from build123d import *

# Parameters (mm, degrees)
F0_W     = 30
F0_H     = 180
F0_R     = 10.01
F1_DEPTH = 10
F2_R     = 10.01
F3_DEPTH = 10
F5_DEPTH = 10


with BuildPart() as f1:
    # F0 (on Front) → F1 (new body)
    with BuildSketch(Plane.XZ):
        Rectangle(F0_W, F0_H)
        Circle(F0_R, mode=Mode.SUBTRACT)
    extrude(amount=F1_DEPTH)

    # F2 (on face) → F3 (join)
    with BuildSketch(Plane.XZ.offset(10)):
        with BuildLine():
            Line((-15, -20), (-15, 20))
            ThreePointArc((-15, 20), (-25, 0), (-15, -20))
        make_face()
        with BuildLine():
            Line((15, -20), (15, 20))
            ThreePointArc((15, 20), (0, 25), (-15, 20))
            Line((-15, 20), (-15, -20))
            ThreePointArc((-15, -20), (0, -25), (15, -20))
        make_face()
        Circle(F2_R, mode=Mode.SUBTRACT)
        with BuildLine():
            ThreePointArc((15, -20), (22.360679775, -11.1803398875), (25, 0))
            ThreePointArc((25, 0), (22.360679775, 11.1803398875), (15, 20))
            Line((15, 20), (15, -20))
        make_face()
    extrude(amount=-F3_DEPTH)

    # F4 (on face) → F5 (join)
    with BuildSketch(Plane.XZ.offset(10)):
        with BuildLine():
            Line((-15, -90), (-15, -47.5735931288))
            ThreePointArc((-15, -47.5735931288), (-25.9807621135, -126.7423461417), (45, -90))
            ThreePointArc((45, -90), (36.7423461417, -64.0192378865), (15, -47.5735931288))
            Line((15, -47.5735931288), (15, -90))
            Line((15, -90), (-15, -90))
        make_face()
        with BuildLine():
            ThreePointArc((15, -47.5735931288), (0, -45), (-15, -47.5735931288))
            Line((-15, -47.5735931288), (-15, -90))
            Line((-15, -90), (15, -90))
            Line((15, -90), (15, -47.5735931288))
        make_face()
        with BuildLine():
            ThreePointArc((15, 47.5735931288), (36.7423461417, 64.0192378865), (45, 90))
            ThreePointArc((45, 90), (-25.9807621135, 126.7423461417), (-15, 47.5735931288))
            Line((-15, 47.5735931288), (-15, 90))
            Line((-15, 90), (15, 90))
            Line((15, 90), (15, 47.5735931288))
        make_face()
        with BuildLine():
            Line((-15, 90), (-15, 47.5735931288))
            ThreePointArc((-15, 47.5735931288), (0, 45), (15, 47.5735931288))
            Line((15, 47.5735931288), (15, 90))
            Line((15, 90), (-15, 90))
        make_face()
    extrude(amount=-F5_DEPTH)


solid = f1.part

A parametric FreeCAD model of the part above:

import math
import FreeCAD as App
import Part
import Sketcher
from FreeCAD import Vector

doc = App.newDocument("Part")
body = doc.addObject("PartDesign::Body", "Body")

# Sketch on XZ plane
sketch1 = doc.addObject("Sketcher::SketchObject", "Sketch")
body.addObject(sketch1)
sketch1.AttachmentSupport = (doc.XZ_Plane, [""])
sketch1.MapMode = "FlatFace"
sketch1.addGeometry(Part.LineSegment(Vector(-15, 90, 0), Vector(-15, -90, 0)), False)
sketch1.addGeometry(Part.LineSegment(Vector(-15, -90, 0), Vector(15, -90, 0)), False)
sketch1.addGeometry(Part.LineSegment(Vector(15, -90, 0), Vector(15, 90, 0)), False)
sketch1.addGeometry(Part.LineSegment(Vector(15, 90, 0), Vector(-15, 90, 0)), False)
sketch1.addGeometry(Part.Circle(Vector(0, 0, 0), Vector(0, 0, 1), 10.01), False)
sketch1.addConstraint(Sketcher.Constraint("Coincident", 0, 2, 1, 1))
sketch1.addConstraint(Sketcher.Constraint("Coincident", 1, 2, 2, 1))
sketch1.addConstraint(Sketcher.Constraint("Coincident", 2, 2, 3, 1))
sketch1.addConstraint(Sketcher.Constraint("Coincident", 3, 2, 0, 1))
sketch1.addConstraint(Sketcher.Constraint("Vertical", 0))
sketch1.addConstraint(Sketcher.Constraint("Horizontal", 1))
sketch1.addConstraint(Sketcher.Constraint("Vertical", 2))
sketch1.addConstraint(Sketcher.Constraint("Horizontal", 3))
sketch1.addConstraint(Sketcher.Constraint("Coincident", 4, 3, -1, 1))
sketch1.addConstraint(Sketcher.Constraint("Symmetric", 0, 2, 2, 2, -1, 1))
sketch1.addConstraint(Sketcher.Constraint("Diameter", 4, 20.02))
sketch1.addConstraint(Sketcher.Constraint("DistanceX", 1, 1, 1, 2, 30.0))
sketch1.addConstraint(Sketcher.Constraint("DistanceY", 0, 2, 0, 1, 180.0))
pad1 = doc.addObject("PartDesign::Pad", "Pad")
body.addObject(pad1)
pad1.Profile = sketch1
pad1.Length = 10

# Sketch on XZ plane
sketch2 = doc.addObject("Sketcher::SketchObject", "Sketch001")
body.addObject(sketch2)
sketch2.AttachmentSupport = (doc.XZ_Plane, [""])
sketch2.MapMode = "FlatFace"
sketch2.AttachmentOffset = App.Placement(Vector(0, 0, 10), App.Rotation())
sketch2.addGeometry(Part.Circle(Vector(0, 0, 0), Vector(0, 0, 1), 25), False)
sketch2.addGeometry(Part.Circle(Vector(0, 0, 0), Vector(0, 0, 1), 10.01), False)
sketch2.addConstraint(Sketcher.Constraint("Coincident", 0, 3, -1, 1))
sketch2.addConstraint(Sketcher.Constraint("Coincident", 1, 3, -1, 1))
sketch2.addConstraint(Sketcher.Constraint("Diameter", 0, 50.0))
sketch2.addConstraint(Sketcher.Constraint("Diameter", 1, 20.02))
pad2 = doc.addObject("PartDesign::Pad", "Pad001")
body.addObject(pad2)
pad2.Profile = sketch2
pad2.Length = 10
pad2.Reversed = True

# Sketch on XZ plane
sketch3 = doc.addObject("Sketcher::SketchObject", "Sketch002")
body.addObject(sketch3)
sketch3.AttachmentSupport = (doc.XZ_Plane, [""])
sketch3.MapMode = "FlatFace"
sketch3.AttachmentOffset = App.Placement(Vector(0, 0, 10), App.Rotation())
sketch3.addGeometry(Part.ArcOfCircle(Part.Circle(Vector(0, -90, 0), Vector(0, 0, 1), 45), math.radians(109.471221), math.radians(360)), False)
sketch3.addGeometry(Part.ArcOfCircle(Part.Circle(Vector(0, -90, 0), Vector(0, 0, 1), 45), math.radians(0), math.radians(70.528779)), False)
sketch3.addGeometry(Part.ArcOfCircle(Part.Circle(Vector(0, -90, 0), Vector(0, 0, 1), 45), math.radians(70.528779), math.radians(109.471221)), False)
sketch3.addGeometry(Part.ArcOfCircle(Part.Circle(Vector(0, 90, 0), Vector(0, 0, 1), 45), math.radians(-70.528779), math.radians(0)), False)
sketch3.addGeometry(Part.ArcOfCircle(Part.Circle(Vector(0, 90, 0), Vector(0, 0, 1), 45), math.radians(0), math.radians(250.528779)), False)
sketch3.addGeometry(Part.ArcOfCircle(Part.Circle(Vector(0, 90, 0), Vector(0, 0, 1), 45), math.radians(-109.471221), math.radians(-70.528779)), False)
sketch3.addConstraint(Sketcher.Constraint("Tangent", 0, 2, 1, 1))
sketch3.addConstraint(Sketcher.Constraint("Tangent", 1, 2, 2, 1))
sketch3.addConstraint(Sketcher.Constraint("Tangent", 2, 2, 0, 1))
sketch3.addConstraint(Sketcher.Constraint("Tangent", 3, 2, 4, 1))
sketch3.addConstraint(Sketcher.Constraint("Tangent", 4, 2, 5, 1))
sketch3.addConstraint(Sketcher.Constraint("Tangent", 5, 2, 3, 1))
sketch3.addConstraint(Sketcher.Constraint("Equal", 2, 3))
sketch3.addConstraint(Sketcher.Constraint("Symmetric", 0, 3, 3, 3, -1, 1))
sketch3.addConstraint(Sketcher.Constraint("Symmetric", 1, 2, 2, 2, -2))
sketch3.addConstraint(Sketcher.Constraint("Horizontal", 2, 3, 0, 2))
sketch3.addConstraint(Sketcher.Constraint("Horizontal", 5, 3, 3, 2))
sketch3.addConstraint(Sketcher.Constraint("Horizontal", 4, 2, 5, 2))
sketch3.addConstraint(Sketcher.Constraint("Vertical", 2, 2, 4, 2))
sketch3.addConstraint(Sketcher.Constraint("Radius", 0, 45.0))
sketch3.addConstraint(Sketcher.Constraint("DistanceY", 0, 3, -1, 1, 90.0))
sketch3.addConstraint(Sketcher.Constraint("DistanceX", -1, 1, 1, 2, 15.0))
pad3 = doc.addObject("PartDesign::Pad", "Pad002")
body.addObject(pad3)
pad3.Profile = sketch3
pad3.Length = 10
pad3.Reversed = True

doc.recompute()
